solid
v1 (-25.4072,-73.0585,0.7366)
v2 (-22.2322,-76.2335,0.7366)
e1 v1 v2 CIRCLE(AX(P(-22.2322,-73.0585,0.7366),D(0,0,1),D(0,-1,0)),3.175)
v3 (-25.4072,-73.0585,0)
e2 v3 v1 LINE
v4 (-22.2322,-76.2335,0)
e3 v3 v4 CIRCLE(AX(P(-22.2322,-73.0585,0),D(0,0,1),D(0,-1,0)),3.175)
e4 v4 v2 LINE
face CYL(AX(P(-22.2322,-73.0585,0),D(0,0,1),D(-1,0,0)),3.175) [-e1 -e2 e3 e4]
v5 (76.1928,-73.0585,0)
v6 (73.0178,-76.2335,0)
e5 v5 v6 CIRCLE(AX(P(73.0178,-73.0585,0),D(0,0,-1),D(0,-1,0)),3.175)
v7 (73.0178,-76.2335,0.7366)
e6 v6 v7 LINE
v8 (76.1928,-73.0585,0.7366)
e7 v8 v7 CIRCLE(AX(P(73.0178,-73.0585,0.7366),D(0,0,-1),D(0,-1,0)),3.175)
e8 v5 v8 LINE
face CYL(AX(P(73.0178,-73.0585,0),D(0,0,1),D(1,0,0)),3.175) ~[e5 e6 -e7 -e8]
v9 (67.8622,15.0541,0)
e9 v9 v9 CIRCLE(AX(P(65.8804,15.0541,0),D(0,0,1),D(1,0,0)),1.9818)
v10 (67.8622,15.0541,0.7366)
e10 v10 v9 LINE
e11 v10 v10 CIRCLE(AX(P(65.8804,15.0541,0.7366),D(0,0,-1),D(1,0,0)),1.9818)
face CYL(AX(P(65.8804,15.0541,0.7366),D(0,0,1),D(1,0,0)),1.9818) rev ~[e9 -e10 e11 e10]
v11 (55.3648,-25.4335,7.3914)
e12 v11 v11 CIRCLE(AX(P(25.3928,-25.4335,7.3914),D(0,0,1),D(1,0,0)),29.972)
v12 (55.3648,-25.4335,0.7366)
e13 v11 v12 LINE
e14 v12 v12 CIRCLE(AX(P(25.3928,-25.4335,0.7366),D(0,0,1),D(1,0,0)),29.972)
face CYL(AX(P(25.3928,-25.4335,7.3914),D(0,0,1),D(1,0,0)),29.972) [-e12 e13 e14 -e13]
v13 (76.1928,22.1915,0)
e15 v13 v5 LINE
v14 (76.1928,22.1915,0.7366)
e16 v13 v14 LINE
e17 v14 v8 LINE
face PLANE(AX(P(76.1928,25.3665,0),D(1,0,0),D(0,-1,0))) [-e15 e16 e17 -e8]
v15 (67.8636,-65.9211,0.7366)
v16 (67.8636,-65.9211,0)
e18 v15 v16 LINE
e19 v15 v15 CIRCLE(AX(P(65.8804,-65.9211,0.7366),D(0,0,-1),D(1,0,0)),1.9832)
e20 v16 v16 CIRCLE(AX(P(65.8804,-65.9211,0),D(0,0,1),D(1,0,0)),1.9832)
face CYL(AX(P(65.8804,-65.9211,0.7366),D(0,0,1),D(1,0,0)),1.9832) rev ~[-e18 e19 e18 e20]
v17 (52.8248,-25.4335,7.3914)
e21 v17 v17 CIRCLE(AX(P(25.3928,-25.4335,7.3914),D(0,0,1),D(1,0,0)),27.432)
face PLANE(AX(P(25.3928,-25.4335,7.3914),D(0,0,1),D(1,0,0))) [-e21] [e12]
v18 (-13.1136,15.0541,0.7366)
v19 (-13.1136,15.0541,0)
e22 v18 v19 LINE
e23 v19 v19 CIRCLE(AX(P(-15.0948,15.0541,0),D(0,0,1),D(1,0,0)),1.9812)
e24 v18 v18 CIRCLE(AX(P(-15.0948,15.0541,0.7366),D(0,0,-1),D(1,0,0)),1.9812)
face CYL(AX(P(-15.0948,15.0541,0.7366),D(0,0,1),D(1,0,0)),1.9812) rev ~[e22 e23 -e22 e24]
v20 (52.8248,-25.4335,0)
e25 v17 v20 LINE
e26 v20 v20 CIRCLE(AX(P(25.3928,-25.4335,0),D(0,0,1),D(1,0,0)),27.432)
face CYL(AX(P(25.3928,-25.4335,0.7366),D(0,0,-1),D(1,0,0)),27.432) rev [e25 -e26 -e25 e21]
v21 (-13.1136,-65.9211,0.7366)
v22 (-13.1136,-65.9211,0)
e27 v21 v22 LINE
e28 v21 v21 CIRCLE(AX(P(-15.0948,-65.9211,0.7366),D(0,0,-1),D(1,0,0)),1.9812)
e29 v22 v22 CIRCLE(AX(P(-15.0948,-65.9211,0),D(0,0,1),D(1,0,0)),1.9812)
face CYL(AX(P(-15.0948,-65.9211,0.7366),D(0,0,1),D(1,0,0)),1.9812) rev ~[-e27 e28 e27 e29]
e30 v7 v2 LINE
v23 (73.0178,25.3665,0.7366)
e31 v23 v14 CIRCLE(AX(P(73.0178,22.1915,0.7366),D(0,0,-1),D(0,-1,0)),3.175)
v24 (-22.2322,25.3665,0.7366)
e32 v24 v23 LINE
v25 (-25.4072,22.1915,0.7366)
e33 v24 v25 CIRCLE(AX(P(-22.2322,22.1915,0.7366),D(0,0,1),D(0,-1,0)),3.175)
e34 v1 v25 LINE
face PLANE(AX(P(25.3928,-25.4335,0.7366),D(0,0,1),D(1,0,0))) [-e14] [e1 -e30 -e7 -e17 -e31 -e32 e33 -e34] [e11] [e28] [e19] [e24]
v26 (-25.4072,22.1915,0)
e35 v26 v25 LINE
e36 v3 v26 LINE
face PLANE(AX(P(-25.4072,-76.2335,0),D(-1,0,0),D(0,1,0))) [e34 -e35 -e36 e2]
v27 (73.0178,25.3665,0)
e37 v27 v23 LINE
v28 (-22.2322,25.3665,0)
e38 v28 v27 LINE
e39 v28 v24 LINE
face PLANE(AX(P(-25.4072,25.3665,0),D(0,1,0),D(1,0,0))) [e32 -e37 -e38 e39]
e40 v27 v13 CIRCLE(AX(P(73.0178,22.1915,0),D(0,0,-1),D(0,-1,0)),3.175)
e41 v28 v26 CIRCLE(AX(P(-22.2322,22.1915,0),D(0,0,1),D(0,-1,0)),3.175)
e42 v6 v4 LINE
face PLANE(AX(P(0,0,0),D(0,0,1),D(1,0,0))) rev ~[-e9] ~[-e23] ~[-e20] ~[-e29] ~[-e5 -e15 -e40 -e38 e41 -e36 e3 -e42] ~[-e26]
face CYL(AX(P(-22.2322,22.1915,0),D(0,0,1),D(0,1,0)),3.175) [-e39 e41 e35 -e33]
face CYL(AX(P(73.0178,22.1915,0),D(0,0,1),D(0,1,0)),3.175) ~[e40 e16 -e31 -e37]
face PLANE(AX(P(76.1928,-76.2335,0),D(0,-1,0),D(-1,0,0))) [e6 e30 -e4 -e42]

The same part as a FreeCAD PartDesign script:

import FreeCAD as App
import Part
import Sketcher

V = App.Vector
Q = App.Units.Quantity


def edges_at(feature, points):
    """Names of the edges that pass closest to the given points."""
    edges = feature.Shape.Edges
    near = lambda p: min(range(len(edges)), key=lambda i: edges[i].distToShape(Part.Vertex(*p))[0])
    return sorted({f"Edge{near(p) + 1}" for p in points})

doc = App.newDocument("Part")
body = doc.addObject("PartDesign::Body", "Body")

# Sketch on XY plane
sketch1 = body.newObject("Sketcher::SketchObject", "Sketch")
sketch1.AttachmentSupport = (doc.getObject("XY_Plane"), [""])
sketch1.MapMode = "FlatFace"
sketch1.addGeometry(Part.LineSegment(V(76, 25, 0), V(-25, 25, 0)), False)
sketch1.addGeometry(Part.LineSegment(V(-25, 25, 0), V(-25, -76, 0)), False)
sketch1.addGeometry(Part.LineSegment(V(-25, -76, 0), V(76, -76, 0)), False)
sketch1.addGeometry(Part.LineSegment(V(76, -76, 0), V(76, 25, 0)), False)
sketch1.addConstraint(Sketcher.Constraint("Coincident", 0, 2, 1, 1))
sketch1.addConstraint(Sketcher.Constraint("Coincident", 1, 2, 2, 1))
sketch1.addConstraint(Sketcher.Constraint("Coincident", 2, 2, 3, 1))
sketch1.addConstraint(Sketcher.Constraint("Coincident", 3, 2, 0, 1))
sketch1.addConstraint(Sketcher.Constraint("Horizontal", 0))
sketch1.addConstraint(Sketcher.Constraint("Vertical", 1))
sketch1.addConstraint(Sketcher.Constraint("Horizontal", 2))
sketch1.addConstraint(Sketcher.Constraint("Vertical", 3))
sketch1.addConstraint(Sketcher.Constraint("Equal", 2, 1))
sketch1.addConstraint(Sketcher.Constraint("DistanceX", 0, 2, 0, 1, Q("4 in")))
sketch1.addConstraint(Sketcher.Constraint("DistanceX", 0, 2, -1, 1, Q("25.4072 mm")))
sketch1.addConstraint(Sketcher.Constraint("DistanceY", -1, 1, 0, 2, Q("25.3665 mm")))
pad1 = body.newObject("PartDesign::Pad", "Pad")
pad1.Profile = sketch1
pad1.Length = Q("0.029 in")

# Sketch on XY plane
sketch2 = body.newObject("Sketcher::SketchObject", "Sketch001")
sketch2.AttachmentSupport = (doc.getObject("XY_Plane"), [""])
sketch2.MapMode = "FlatFace"
sketch2.AttachmentOffset = App.Placement(V(0, 0, 0.029 * 25.4), App.Rotation())
sketch2.addGeometry(Part.Circle(V(25, -25, 0), V(0, 0, 1), 27), False)
sketch2.addConstraint(Sketcher.Constraint("Diameter", 0, Q("2.16 in")))
sketch2.addConstraint(Sketcher.Constraint("DistanceX", -1, 1, 0, 3, Q("25.3928 mm")))
sketch2.addConstraint(Sketcher.Constraint("DistanceY", 0, 3, -1, 1, Q("25.4335 mm")))
pocket1 = body.newObject("PartDesign::Pocket", "Pocket")
pocket1.Profile = sketch2
pocket1.Length = Q("0.029 in")

# Sketch on XY plane
sketch3 = body.newObject("Sketcher::SketchObject", "Sketch002")
sketch3.AttachmentSupport = (doc.getObject("XY_Plane"), [""])
sketch3.MapMode = "FlatFace"
sketch3.AttachmentOffset = App.Placement(V(0, 0, 0.029 * 25.4), App.Rotation())
sketch3.addGeometry(Part.Circle(V(-19.5, 19.4, 0), V(0, 0, 1), 2), False)
sketch3.addConstraint(Sketcher.Constraint("Diameter", 0, Q("0.156 in")))
sketch3.addConstraint(Sketcher.Constraint("DistanceX", 0, 3, -1, 1, Q("19.451 mm")))
sketch3.addConstraint(Sketcher.Constraint("DistanceY", -1, 1, 0, 3, Q("19.4102 mm")))
pocket2 = body.newObject("PartDesign::Pocket", "Pocket001")
pocket2.Profile = sketch3
pocket2.Length = Q("0.029 in")

# Sketch on XY plane
sketch4 = body.newObject("Sketcher::SketchObject", "Sketch003")
sketch4.AttachmentSupport = (doc.getObject("XY_Plane"), [""])
sketch4.MapMode = "FlatFace"
sketch4.AttachmentOffset = App.Placement(V(0, 0, 0.029 * 25.4), App.Rotation())
sketch4.addGeometry(Part.Circle(V(-19.5, -70.3, 0), V(0, 0, 1), 2), False)
sketch4.addGeometry(Part.Circle(V(70.2, 19.4, 0), V(0, 0, 1), 2), False)
sketch4.addGeometry(Part.Circle(V(70.2, -70.3, 0), V(0, 0, 1), 2), False)
sketch4.addConstraint(Sketcher.Constraint("Horizontal", 0, 3, 2, 3))
sketch4.addConstraint(Sketcher.Constraint("Vertical", 1, 3, 2, 3))
sketch4.addConstraint(Sketcher.Constraint("Diameter", 0, Q("0.156 in")))
sketch4.addConstraint(Sketcher.Constraint("Diameter", 1, Q("3.9638 mm")))
sketch4.addConstraint(Sketcher.Constraint("Diameter", 2, Q("3.966 mm")))
sketch4.addConstraint(Sketcher.Constraint("DistanceX", 0, 3, 1, 3, Q("3.531 in")))
sketch4.addConstraint(Sketcher.Constraint("DistanceY", 0, 3, 1, 3, Q("3.531 in")))
sketch4.addConstraint(Sketcher.Constraint("DistanceX", 0, 3, -1, 1, Q("19.451 mm")))
sketch4.addConstraint(Sketcher.Constraint("DistanceY", 0, 3, -1, 1, Q("70.2772 mm")))
pocket3 = body.newObject("PartDesign::Pocket", "Pocket002")
pocket3.Profile = sketch4
pocket3.Length = Q("0.029 in")

# Sketch on XY plane
sketch5 = body.newObject("Sketcher::SketchObject", "Sketch004")
sketch5.AttachmentSupport = (doc.getObject("XY_Plane"), [""])
sketch5.MapMode = "FlatFace"
sketch5.AttachmentOffset = App.Placement(V(0, 0, 0.029 * 25.4), App.Rotation())
sketch5.addGeometry(Part.Circle(V(25, -25, 0), V(0, 0, 1), 33), False)
sketch5.addGeometry(Part.Circle(V(25, -25, 0), V(0, 0, 1), 30), False)
sketch5.addConstraint(Sketcher.Constraint("Coincident", 1, 3, 0, 3))
sketch5.addConstraint(Sketcher.Constraint("Diameter", 0, Q("2.56 in")))
sketch5.addConstraint(Sketcher.Constraint("Diameter", 1, Q("2.36 in")))
sketch5.addConstraint(Sketcher.Constraint("DistanceX", -1, 1, 0, 3, Q("25.3928 mm")))
sketch5.addConstraint(Sketcher.Constraint("DistanceY", 0, 3, -1, 1, Q("25.4335 mm")))
pad2 = body.newObject("PartDesign::Pad", "Pad001")
pad2.Profile = sketch5
pad2.Length = Q("0.262 in")
doc.recompute()

fillet = body.newObject("PartDesign::Fillet", "Fillet")
fillet.Base = (pad2, edges_at(pad2, [
    (-25.407, 25.366, 0.368),
    (76.193, 25.366, 0.368),
    (76.193, -76.234, 0.368),
    (-25.407, -76.234, 0.368),
]))
fillet.Radius = Q("0.125 in")

# Sketch on XY plane
sketch6 = body.newObject("Sketcher::SketchObject", "Sketch005")
sketch6.AttachmentSupport = (doc.getObject("XY_Plane"), [""])
sketch6.MapMode = "FlatFace"
sketch6.AttachmentOffset = App.Placement(V(0, 0, 0.029 * 25.4), App.Rotation())
sketch6.addGeometry(Part.Circle(V(25, -25, 0), V(0, 0, 1), 30), False)
sketch6.addGeometry(Part.Circle(V(25, -25, 0), V(0, 0, 1), 27), False)
sketch6.addConstraint(Sketcher.Constraint("Coincident", 1, 3, 0, 3))
sketch6.addConstraint(Sketcher.Constraint("Diameter", 0, Q("2.36 in")))
sketch6.addConstraint(Sketcher.Constraint("Diameter", 1, Q("2.16 in")))
sketch6.addConstraint(Sketcher.Constraint("DistanceX", -1, 1, 0, 3, Q("25.3928 mm")))
sketch6.addConstraint(Sketcher.Constraint("DistanceY", 0, 3, -1, 1, Q("25.4335 mm")))
pad3 = body.newObject("PartDesign::Pad", "Pad002")
pad3.Profile = sketch6
pad3.Length = Q("0.362 in")

# Sketch on XY plane
sketch7 = body.newObject("Sketcher::SketchObject", "Sketch006")
sketch7.AttachmentSupport = (doc.getObject("XY_Plane"), [""])
sketch7.MapMode = "FlatFace"
sketch7.AttachmentOffset = App.Placement(V(0, 0, 0.291 * 25.4), App.Rotation())
sketch7.addGeometry(Part.Circle(V(25, -25, 0), V(0, 0, 1), 33), False)
sketch7.addGeometry(Part.Circle(V(25, -25, 0), V(0, 0, 1), 30), False)
sketch7.addConstraint(Sketcher.Constraint("Coincident", 1, 3, 0, 3))
sketch7.addConstraint(Sketcher.Constraint("Diameter", 0, Q("2.56 in")))
sketch7.addConstraint(Sketcher.Constraint("Diameter", 1, Q("2.36 in")))
sketch7.addConstraint(Sketcher.Constraint("DistanceX", -1, 1, 0, 3, Q("25.3928 mm")))
sketch7.addConstraint(Sketcher.Constraint("DistanceY", 0, 3, -1, 1, Q("25.4335 mm")))
pocket4 = body.newObject("PartDesign::Pocket", "Pocket003")
pocket4.Profile = sketch7
pocket4.Length = Q("0.262 in")

# Sketch on XY plane
sketch8 = body.newObject("Sketcher::SketchObject", "Sketch007")
sketch8.AttachmentSupport = (doc.getObject("XY_Plane"), [""])
sketch8.MapMode = "FlatFace"
sketch8.AttachmentOffset = App.Placement(V(0, 0, 0.391 * 25.4), App.Rotation())
sketch8.addGeometry(Part.Circle(V(25, -25, 0), V(0, 0, 1), 30), False)
sketch8.addGeometry(Part.Circle(V(25, -25, 0), V(0, 0, 1), 27), False)
sketch8.addConstraint(Sketcher.Constraint("Coincident", 1, 3, 0, 3))
sketch8.addConstraint(Sketcher.Constraint("Diameter", 0, Q("2.36 in")))
sketch8.addConstraint(Sketcher.Constraint("Diameter", 1, Q("2.16 in")))
sketch8.addConstraint(Sketcher.Constraint("DistanceX", -1, 1, 0, 3, Q("25.3928 mm")))
sketch8.addConstraint(Sketcher.Constraint("DistanceY", 0, 3, -1, 1, Q("25.4335 mm")))
pocket5 = body.newObject("PartDesign::Pocket", "Pocket004")
pocket5.Profile = sketch8
pocket5.Length = Q("0.1 in")

# Sketch on XY plane
sketch9 = body.newObject("Sketcher::SketchObject", "Sketch008")
sketch9.AttachmentSupport = (doc.getObject("XY_Plane"), [""])
sketch9.MapMode = "FlatFace"
sketch9.AttachmentOffset = App.Placement(V(0, 0, 0.029 * 25.4), App.Rotation())
sketch9.addGeometry(Part.Circle(V(-19.5, 19.4, 0), V(0, 0, 1), 2), False)
sketch9.addGeometry(Part.Circle(V(70.2, -70.3, 0), V(0, 0, 1), 2), False)
sketch9.addGeometry(Part.Circle(V(-19.5, -70.3, 0), V(0, 0, 1), 2), False)
sketch9.addGeometry(Part.Circle(V(70.2, 19.4, 0), V(0, 0, 1), 2), False)
sketch9.addConstraint(Sketcher.Constraint("Equal", 0, 2))
sketch9.addConstraint(Sketcher.Constraint("Horizontal", 1, 3, 2, 3))
sketch9.addConstraint(Sketcher.Constraint("Horizontal", 0, 3, 3, 3))
sketch9.addConstraint(Sketcher.Constraint("Vertical", 0, 3, 2, 3))
sketch9.addConstraint(Sketcher.Constraint("Vertical", 1, 3, 3, 3))
sketch9.addConstraint(Sketcher.Constraint("Diameter", 0, Q("0.156 in")))
sketch9.addConstraint(Sketcher.Constraint("Diameter", 1, Q("3.966 mm")))
sketch9.addConstraint(Sketcher.Constraint("Diameter", 3, Q("3.9638 mm")))
sketch9.addConstraint(Sketcher.Constraint("DistanceX", 0, 3, 1, 3, Q("3.531 in")))
sketch9.addConstraint(Sketcher.Constraint("DistanceY", 1, 3, 0, 3, Q("3.531 in")))
sketch9.addConstraint(Sketcher.Constraint("DistanceX", 0, 3, -1, 1, Q("19.451 mm")))
sketch9.addConstraint(Sketcher.Constraint("DistanceY", -1, 1, 0, 3, Q("19.4102 mm")))
pad4 = body.newObject("PartDesign::Pad", "Pad003")
pad4.Profile = sketch9
pad4.Length = Q("0.029 in")
pad4.Reversed = True

# Sketch on XY plane
sketch10 = body.newObject("Sketcher::SketchObject", "Sketch009")
sketch10.AttachmentSupport = (doc.getObject("XY_Plane"), [""])
sketch10.MapMode = "FlatFace"
sketch10.AttachmentOffset = App.Placement(V(0, 0, 0.029 * 25.4), App.Rotation())
sketch10.addGeometry(Part.Circle(V(-15.1, 15.1, 0), V(0, 0, 1), 2), False)
sketch10.addGeometry(Part.Circle(V(65.9, 15.1, 0), V(0, 0, 1), 2), False)
sketch10.addGeometry(Part.Circle(V(65.9, -65.9, 0), V(0, 0, 1), 2), False)
sketch10.addGeometry(Part.Circle(V(-15.1, -65.9, 0), V(0, 0, 1), 2), False)
sketch10.addConstraint(Sketcher.Constraint("Equal", 0, 3))
sketch10.addConstraint(Sketcher.Constraint("Horizontal", 0, 3, 1, 3))
sketch10.addConstraint(Sketcher.Constraint("Horizontal", 2, 3, 3, 3))
sketch10.addConstraint(Sketcher.Constraint("Vertical", 1, 3, 2, 3))
sketch10.addConstraint(Sketcher.Constraint("Vertical", 0, 3, 3, 3))
sketch10.addConstraint(Sketcher.Constraint("Diameter", 0, Q("0.156 in")))
sketch10.addConstraint(Sketcher.Constraint("Diameter", 1, Q("3.9636 mm")))
sketch10.addConstraint(Sketcher.Constraint("Diameter", 2, Q("3.9664 mm")))
sketch10.addConstraint(Sketcher.Constraint("DistanceX", 0, 3, 1, 3, Q("3.188 in")))
sketch10.addConstraint(Sketcher.Constraint("DistanceY", 2, 3, 1, 3, Q("3.188 in")))
sketch10.addConstraint(Sketcher.Constraint("DistanceX", 0, 3, -1, 1, Q("15.0948 mm")))
sketch10.addConstraint(Sketcher.Constraint("DistanceY", -1, 1, 0, 3, Q("15.054 mm")))
pocket6 = body.newObject("PartDesign::Pocket", "Pocket005")
pocket6.Profile = sketch10
pocket6.Length = Q("0.029 in")

doc.recompute()
